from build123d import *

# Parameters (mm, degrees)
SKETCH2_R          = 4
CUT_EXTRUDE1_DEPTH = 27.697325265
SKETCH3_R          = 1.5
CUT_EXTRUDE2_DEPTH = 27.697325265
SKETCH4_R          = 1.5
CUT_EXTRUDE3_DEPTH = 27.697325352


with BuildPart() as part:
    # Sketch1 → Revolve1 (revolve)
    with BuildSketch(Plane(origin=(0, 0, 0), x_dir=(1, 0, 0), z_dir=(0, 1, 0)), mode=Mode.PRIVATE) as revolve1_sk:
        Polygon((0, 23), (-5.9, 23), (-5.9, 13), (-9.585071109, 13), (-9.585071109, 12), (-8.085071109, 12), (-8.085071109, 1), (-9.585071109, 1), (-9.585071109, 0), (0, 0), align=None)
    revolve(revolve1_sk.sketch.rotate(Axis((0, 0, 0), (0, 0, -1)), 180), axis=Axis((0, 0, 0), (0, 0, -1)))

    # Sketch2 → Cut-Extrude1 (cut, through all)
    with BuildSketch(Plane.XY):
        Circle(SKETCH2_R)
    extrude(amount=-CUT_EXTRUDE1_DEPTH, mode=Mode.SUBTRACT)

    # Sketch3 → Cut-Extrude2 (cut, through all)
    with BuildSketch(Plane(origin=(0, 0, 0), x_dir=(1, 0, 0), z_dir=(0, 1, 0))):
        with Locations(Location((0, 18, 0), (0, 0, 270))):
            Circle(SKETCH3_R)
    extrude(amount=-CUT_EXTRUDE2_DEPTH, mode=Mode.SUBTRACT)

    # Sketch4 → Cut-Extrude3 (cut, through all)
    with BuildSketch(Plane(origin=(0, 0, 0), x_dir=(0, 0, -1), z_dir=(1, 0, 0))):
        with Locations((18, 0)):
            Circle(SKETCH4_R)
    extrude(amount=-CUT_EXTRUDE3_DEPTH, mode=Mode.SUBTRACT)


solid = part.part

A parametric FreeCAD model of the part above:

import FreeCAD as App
import Part
import Sketcher
from FreeCAD import Vector
Q = App.Units.Quantity

doc = App.newDocument("Part")
body = doc.addObject("PartDesign::Body", "Body")

# Sketch on XZ plane
sketch1 = body.newObject("Sketcher::SketchObject", "Sketch")
sketch1.AttachmentSupport = (doc.getObject("XZ_Plane"), [""])
sketch1.MapMode = "FlatFace"
sketch1.addGeometry([
    Part.LineSegment(Vector(0, -23, 0), Vector(-5.9, -23, 0)),  # 0
    Part.LineSegment(Vector(-5.9, -23, 0), Vector(-5.9, -13, 0)),  # 1
    Part.LineSegment(Vector(-5.9, -13, 0), Vector(-9.6, -13, 0)),  # 2
    Part.LineSegment(Vector(-9.6, -13, 0), Vector(-9.6, -12, 0)),  # 3
    Part.LineSegment(Vector(-9.6, -12, 0), Vector(-8.1, -12, 0)),  # 4
    Part.LineSegment(Vector(-8.1, -12, 0), Vector(-8.1, -1, 0)),  # 5
    Part.LineSegment(Vector(-8.1, -1, 0), Vector(-9.6, -1, 0)),  # 6
    Part.LineSegment(Vector(-9.6, -1, 0), Vector(-9.6, 0, 0)),  # 7
    Part.LineSegment(Vector(-9.6, 0, 0), Vector(0, 0, 0)),  # 8
    Part.LineSegment(Vector(0, 0, 0), Vector(0, -23, 0)),  # 9
], False)
sketch1.addConstraint([
    Sketcher.Constraint("Coincident", 0, 2, 1, 1),
    Sketcher.Constraint("Coincident", 1, 2, 2, 1),
    Sketcher.Constraint("Coincident", 2, 2, 3, 1),
    Sketcher.Constraint("Coincident", 3, 2, 4, 1),
    Sketcher.Constraint("Coincident", 4, 2, 5, 1),
    Sketcher.Constraint("Coincident", 5, 2, 6, 1),
    Sketcher.Constraint("Coincident", 6, 2, 7, 1),
    Sketcher.Constraint("Coincident", 7, 2, 8, 1),
    Sketcher.Constraint("Coincident", 8, 2, 9, 1),
    Sketcher.Constraint("Coincident", 9, 2, 0, 1),
    Sketcher.Constraint("Horizontal", 0),
    Sketcher.Constraint("Vertical", 1),
    Sketcher.Constraint("Horizontal", 2),
    Sketcher.Constraint("Vertical", 3),
    Sketcher.Constraint("Horizontal", 4),
    Sketcher.Constraint("Vertical", 5),
    Sketcher.Constraint("Horizontal", 6),
    Sketcher.Constraint("Vertical", 7),
    Sketcher.Constraint("Horizontal", 8),
    Sketcher.Constraint("Vertical", 9),
    Sketcher.Constraint("Coincident", 8, 2, -1, 1),
    Sketcher.Constraint("Vertical", 3, 2, 6, 2),
    Sketcher.Constraint("Equal", 3, 7),
    Sketcher.Constraint("DistanceY", 1, 1, 1, 2, Q("10 mm")),
    Sketcher.Constraint("DistanceY", 3, 1, 3, 2, Q("1 mm")),
    Sketcher.Constraint("DistanceY", 5, 1, 5, 2, Q("11 mm")),
    Sketcher.Constraint("DistanceX", 0, 2, 0, 1, Q("5.9 mm")),
    Sketcher.Constraint("DistanceX", 4, 1, 4, 2, Q("1.5 mm")),
    Sketcher.Constraint("DistanceX", 2, 2, 2, 1, Q("3.685071 mm")),
])
revolution = body.newObject("PartDesign::Revolution", "Revolution")
revolution.Profile = sketch1
revolution.ReferenceAxis = (sketch1, ["V_Axis"])
revolution.Angle = 360

# Sketch on XY plane
sketch2 = body.newObject("Sketcher::SketchObject", "Sketch001")
sketch2.AttachmentSupport = (doc.getObject("XY_Plane"), [""])
sketch2.MapMode = "FlatFace"
sketch2.addGeometry(Part.Circle(Vector(0, 0, 0), Vector(0, 0, 1), 4), False)
sketch2.addConstraint([
    Sketcher.Constraint("Coincident", 0, 3, -1, 1),
    Sketcher.Constraint("Diameter", 0, Q("8 mm")),
])
pocket1 = body.newObject("PartDesign::Pocket", "Pocket")
pocket1.Profile = sketch2
pocket1.Type = "ThroughAll"

# Sketch on XZ plane
sketch3 = body.newObject("Sketcher::SketchObject", "Sketch002")
sketch3.AttachmentSupport = (doc.getObject("XZ_Plane"), [""])
sketch3.MapMode = "FlatFace"
sketch3.addGeometry(Part.Circle(Vector(0, -18, 0), Vector(0, 0, 1), 1.5), False)
sketch3.addConstraint([
    Sketcher.Constraint("PointOnObject", 0, 3, -2),
    Sketcher.Constraint("Diameter", 0, Q("3 mm")),
    Sketcher.Constraint("DistanceY", 0, 3, -1, 1, Q("18 mm")),
])
pocket2 = body.newObject("PartDesign::Pocket", "Pocket001")
pocket2.Profile = sketch3
pocket2.Type = "ThroughAll"
pocket2.Reversed = True

# Sketch on YZ plane
sketch4 = body.newObject("Sketcher::SketchObject", "Sketch003")
sketch4.AttachmentSupport = (doc.getObject("YZ_Plane"), [""])
sketch4.MapMode = "FlatFace"
sketch4.addGeometry(Part.Circle(Vector(0, -18, 0), Vector(0, 0, 1), 1.5), False)
sketch4.addConstraint([
    Sketcher.Constraint("PointOnObject", 0, 3, -2),
    Sketcher.Constraint("Diameter", 0, Q("3 mm")),
    Sketcher.Constraint("DistanceY", 0, 3, -1, 1, Q("18 mm")),
])
pocket3 = body.newObject("PartDesign::Pocket", "Pocket002")
pocket3.Profile = sketch4
pocket3.Type = "ThroughAll"

doc.recompute()
